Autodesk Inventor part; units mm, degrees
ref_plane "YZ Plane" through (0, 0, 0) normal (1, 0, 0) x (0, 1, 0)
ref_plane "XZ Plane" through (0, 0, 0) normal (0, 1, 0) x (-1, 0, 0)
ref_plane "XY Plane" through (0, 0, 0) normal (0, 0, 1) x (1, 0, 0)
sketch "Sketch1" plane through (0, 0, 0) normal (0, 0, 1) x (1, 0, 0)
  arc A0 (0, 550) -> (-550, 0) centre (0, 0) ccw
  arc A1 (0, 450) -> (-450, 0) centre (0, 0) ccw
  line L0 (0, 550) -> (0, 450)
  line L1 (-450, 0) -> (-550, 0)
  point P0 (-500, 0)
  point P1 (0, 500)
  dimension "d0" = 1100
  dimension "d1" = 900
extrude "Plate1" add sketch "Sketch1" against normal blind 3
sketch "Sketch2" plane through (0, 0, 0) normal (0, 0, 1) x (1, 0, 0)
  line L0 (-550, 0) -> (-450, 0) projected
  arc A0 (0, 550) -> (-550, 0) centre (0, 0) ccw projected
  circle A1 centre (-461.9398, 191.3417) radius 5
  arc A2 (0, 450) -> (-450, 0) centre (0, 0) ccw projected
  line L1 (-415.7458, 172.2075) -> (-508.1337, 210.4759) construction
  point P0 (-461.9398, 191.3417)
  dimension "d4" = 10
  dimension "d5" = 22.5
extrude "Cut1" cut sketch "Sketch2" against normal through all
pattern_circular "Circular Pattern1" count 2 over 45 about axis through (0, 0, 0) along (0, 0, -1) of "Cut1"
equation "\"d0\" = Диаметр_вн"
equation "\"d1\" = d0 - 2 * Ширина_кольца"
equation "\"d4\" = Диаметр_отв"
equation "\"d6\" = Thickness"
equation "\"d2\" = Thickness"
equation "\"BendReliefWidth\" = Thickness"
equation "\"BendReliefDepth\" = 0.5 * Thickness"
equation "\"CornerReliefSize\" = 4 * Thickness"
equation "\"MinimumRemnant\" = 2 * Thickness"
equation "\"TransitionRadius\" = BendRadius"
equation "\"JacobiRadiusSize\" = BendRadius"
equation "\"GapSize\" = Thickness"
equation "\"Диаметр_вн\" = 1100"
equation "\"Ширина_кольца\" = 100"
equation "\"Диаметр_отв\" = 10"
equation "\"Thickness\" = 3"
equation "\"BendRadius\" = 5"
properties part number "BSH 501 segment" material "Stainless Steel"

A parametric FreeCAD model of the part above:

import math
import FreeCAD as App
import Part
import Sketcher

V = App.Vector
Q = App.Units.Quantity

doc = App.newDocument("Part")
body = doc.addObject("PartDesign::Body", "Body")

# Sketch on XY plane
sketch1 = body.newObject("Sketcher::SketchObject", "Sketch")
sketch1.AttachmentSupport = (doc.getObject("XY_Plane"), [""])
sketch1.MapMode = "FlatFace"
sketch1.addGeometry(Part.LineSegment(V(0, 450, 0), V(0, 550, 0)), False)
sketch1.addGeometry(Part.ArcOfCircle(Part.Circle(V(0, 0, 0), V(0, 0, 1), 550), math.radians(90), math.radians(180)), False)
sketch1.addGeometry(Part.LineSegment(V(-550, 0, 0), V(-450, 0, 0)), False)
sketch1.addGeometry(Part.ArcOfCircle(Part.Circle(V(0, 0, 0), V(0, 0, 1), 450), math.radians(90), math.radians(180)), False)
sketch1.addConstraint(Sketcher.Constraint("Coincident", 0, 2, 1, 1))
sketch1.addConstraint(Sketcher.Constraint("Coincident", 1, 2, 2, 1))
sketch1.addConstraint(Sketcher.Constraint("Coincident", 2, 2, 3, 2))
sketch1.addConstraint(Sketcher.Constraint("Coincident", 3, 1, 0, 1))
sketch1.addConstraint(Sketcher.Constraint("Vertical", 0))
sketch1.addConstraint(Sketcher.Constraint("Horizontal", 2))
sketch1.addConstraint(Sketcher.Constraint("Coincident", 1, 3, -1, 1))
sketch1.addConstraint(Sketcher.Constraint("Coincident", 3, 3, -1, 1))
sketch1.addConstraint(Sketcher.Constraint("PointOnObject", 0, 2, -2))
sketch1.addConstraint(Sketcher.Constraint("PointOnObject", 2, 2, -1))
sketch1.addConstraint(Sketcher.Constraint("Radius", 1, Q("550 mm")))
sketch1.addConstraint(Sketcher.Constraint("Radius", 3, Q("450 mm")))
pad1 = body.newObject("PartDesign::Pad", "Pad")
pad1.Profile = sketch1
pad1.Length = 3
pad1.Reversed = True

# Sketch on XY plane
sketch2 = body.newObject("Sketcher::SketchObject", "Sketch001")
sketch2.AttachmentSupport = (doc.getObject("XY_Plane"), [""])
sketch2.MapMode = "FlatFace"
sketch2.addGeometry(Part.Circle(V(-462, 191, 0), V(0, 0, 1), 5), False)
sketch2.addConstraint(Sketcher.Constraint("Diameter", 0, Q("10 mm")))
sketch2.addConstraint(Sketcher.Constraint("DistanceX", 0, 3, -1, 1, Q("461.9398 mm")))
sketch2.addConstraint(Sketcher.Constraint("DistanceY", -1, 1, 0, 3, Q("191.3417 mm")))
pocket1 = body.newObject("PartDesign::Pocket", "Pocket")
pocket1.Profile = sketch2
pocket1.Type = "ThroughAll"
doc.recompute()

polarpattern = body.newObject("PartDesign::PolarPattern", "PolarPattern")
polarpattern.Originals = [pocket1]
polarpattern.Axis = (doc.getObject("Z_Axis"), [""])
polarpattern.Angle = 45
polarpattern.Occurrences = 2
polarpattern.Reversed = True
body.Tip = polarpattern

doc.recompute()
